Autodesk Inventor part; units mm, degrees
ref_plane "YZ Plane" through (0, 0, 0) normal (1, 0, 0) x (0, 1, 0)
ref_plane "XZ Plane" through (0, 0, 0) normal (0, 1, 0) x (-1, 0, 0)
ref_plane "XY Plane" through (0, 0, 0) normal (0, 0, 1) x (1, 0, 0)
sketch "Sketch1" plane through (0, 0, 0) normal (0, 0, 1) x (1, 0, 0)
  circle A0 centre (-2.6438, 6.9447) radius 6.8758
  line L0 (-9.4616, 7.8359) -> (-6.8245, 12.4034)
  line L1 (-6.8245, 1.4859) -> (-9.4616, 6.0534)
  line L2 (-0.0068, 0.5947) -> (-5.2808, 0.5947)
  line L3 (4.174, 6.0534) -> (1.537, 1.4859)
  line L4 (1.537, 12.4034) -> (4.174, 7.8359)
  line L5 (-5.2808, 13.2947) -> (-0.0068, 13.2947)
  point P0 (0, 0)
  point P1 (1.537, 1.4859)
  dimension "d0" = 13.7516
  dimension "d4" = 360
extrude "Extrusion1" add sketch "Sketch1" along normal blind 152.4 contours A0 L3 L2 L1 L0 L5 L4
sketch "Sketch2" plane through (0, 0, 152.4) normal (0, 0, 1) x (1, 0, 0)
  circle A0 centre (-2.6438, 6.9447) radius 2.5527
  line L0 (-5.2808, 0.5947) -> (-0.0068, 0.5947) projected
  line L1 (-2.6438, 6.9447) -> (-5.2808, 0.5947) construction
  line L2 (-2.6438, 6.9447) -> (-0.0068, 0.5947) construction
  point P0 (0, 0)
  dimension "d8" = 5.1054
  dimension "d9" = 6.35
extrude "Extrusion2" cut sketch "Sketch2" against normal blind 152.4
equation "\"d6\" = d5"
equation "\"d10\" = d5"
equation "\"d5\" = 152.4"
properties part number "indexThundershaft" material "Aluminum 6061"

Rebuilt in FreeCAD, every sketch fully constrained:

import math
import FreeCAD as App
import Part
import Sketcher

V = App.Vector
Q = App.Units.Quantity

doc = App.newDocument("Part")
params = doc.addObject("Spreadsheet::Sheet", "Params")
for row, (alias, value) in enumerate([
    ("pad1_length", "6 in"),
    ("sketch2_diameter", "0.201 in"),
    ("pocket1_length", "6 in"),
], start=1):
    params.set(f"A{row}", alias)
    params.set(f"B{row}", "=" + value)
    params.setAlias(f"B{row}", alias)

body = doc.addObject("PartDesign::Body", "Body")

# Sketch on XY plane
sketch1 = body.newObject("Sketcher::SketchObject", "Sketch")
sketch1.AttachmentSupport = (doc.getObject("XY_Plane"), [""])
sketch1.MapMode = "FlatFace"
sketch1.addGeometry(Part.ArcOfCircle(Part.Circle(V(-2.6, 6.9, 0), V(0, 0, 1), 6.9), math.radians(-7.45), math.radians(7.45)), False)
sketch1.addGeometry(Part.LineSegment(V(4.2, 7.8, 0), V(1.5, 12.4, 0)), False)
sketch1.addGeometry(Part.ArcOfCircle(Part.Circle(V(-2.6, 6.9, 0), V(0, 0, 1), 6.9), math.radians(52.55), math.radians(67.45)), False)
sketch1.addGeometry(Part.LineSegment(V(0, 13.3, 0), V(-5.3, 13.3, 0)), False)
sketch1.addGeometry(Part.ArcOfCircle(Part.Circle(V(-2.6, 6.9, 0), V(0, 0, 1), 6.9), math.radians(112.55), math.radians(127.45)), False)
sketch1.addGeometry(Part.LineSegment(V(-6.8, 12.4, 0), V(-9.5, 7.8, 0)), False)
sketch1.addGeometry(Part.ArcOfCircle(Part.Circle(V(-2.6, 6.9, 0), V(0, 0, 1), 6.9), math.radians(172.55), math.radians(187.45)), False)
sketch1.addGeometry(Part.LineSegment(V(-9.5, 6.1, 0), V(-6.8, 1.5, 0)), False)
sketch1.addGeometry(Part.ArcOfCircle(Part.Circle(V(-2.6, 6.9, 0), V(0, 0, 1), 6.9), math.radians(-127.45), math.radians(-112.55)), False)
sketch1.addGeometry(Part.LineSegment(V(-5.3, 0.6, 0), V(0, 0.6, 0)), False)
sketch1.addGeometry(Part.ArcOfCircle(Part.Circle(V(-2.6, 6.9, 0), V(0, 0, 1), 6.9), math.radians(-67.45), math.radians(-52.55)), False)
sketch1.addGeometry(Part.LineSegment(V(1.5, 1.5, 0), V(4.2, 6.1, 0)), False)
sketch1.addConstraint(Sketcher.Constraint("Coincident", 0, 2, 1, 1))
sketch1.addConstraint(Sketcher.Constraint("Coincident", 1, 2, 2, 1))
sketch1.addConstraint(Sketcher.Constraint("Coincident", 2, 2, 3, 1))
sketch1.addConstraint(Sketcher.Constraint("Coincident", 3, 2, 4, 1))
sketch1.addConstraint(Sketcher.Constraint("Coincident", 4, 2, 5, 1))
sketch1.addConstraint(Sketcher.Constraint("Coincident", 5, 2, 6, 1))
sketch1.addConstraint(Sketcher.Constraint("Coincident", 6, 2, 7, 1))
sketch1.addConstraint(Sketcher.Constraint("Coincident", 7, 2, 8, 1))
sketch1.addConstraint(Sketcher.Constraint("Coincident", 8, 2, 9, 1))
sketch1.addConstraint(Sketcher.Constraint("Coincident", 9, 2, 10, 1))
sketch1.addConstraint(Sketcher.Constraint("Coincident", 10, 2, 11, 1))
sketch1.addConstraint(Sketcher.Constraint("Coincident", 11, 2, 0, 1))
sketch1.addConstraint(Sketcher.Constraint("Horizontal", 3))
sketch1.addConstraint(Sketcher.Constraint("Horizontal", 9))
sketch1.addConstraint(Sketcher.Constraint("Coincident", 2, 3, 0, 3))
sketch1.addConstraint(Sketcher.Constraint("Coincident", 4, 3, 0, 3))
sketch1.addConstraint(Sketcher.Constraint("Coincident", 6, 3, 0, 3))
sketch1.addConstraint(Sketcher.Constraint("Coincident", 8, 3, 0, 3))
sketch1.addConstraint(Sketcher.Constraint("Coincident", 10, 3, 0, 3))
sketch1.addConstraint(Sketcher.Constraint("Equal", 0, 2))
sketch1.addConstraint(Sketcher.Constraint("Equal", 2, 4))
sketch1.addConstraint(Sketcher.Constraint("Equal", 4, 6))
sketch1.addConstraint(Sketcher.Constraint("Equal", 6, 8))
sketch1.addConstraint(Sketcher.Constraint("Equal", 8, 10))
sketch1.addConstraint(Sketcher.Constraint("Parallel", 1, 7))
sketch1.addConstraint(Sketcher.Constraint("Parallel", 5, 11))
sketch1.addConstraint(Sketcher.Constraint("Horizontal", 1, 2, 4, 2))
sketch1.addConstraint(Sketcher.Constraint("Horizontal", 0, 2, 5, 2))
sketch1.addConstraint(Sketcher.Constraint("Horizontal", 7, 2, 10, 2))
sketch1.addConstraint(Sketcher.Constraint("Vertical", 5, 2, 6, 2))
sketch1.addConstraint(Sketcher.Constraint("Vertical", 3, 2, 8, 2))
sketch1.addConstraint(Sketcher.Constraint("Radius", 0, Q("0.2707 in")))
sketch1.addConstraint(Sketcher.Constraint("Angle", 1, Q("119.9996 deg")))
sketch1.addConstraint(Sketcher.Constraint("DistanceY", 0, 3, 2, 2, Q("0.25 in")))
sketch1.addConstraint(Sketcher.Constraint("DistanceY", 10, 2, 0, 2, Q("0.25 in")))
sketch1.addConstraint(Sketcher.Constraint("DistanceY", -1, 1, 0, 2, Q("0.3085 in")))
sketch1.addConstraint(Sketcher.Constraint("DistanceX", -1, 1, 1, 2, Q("0.0605 in")))
pad1 = body.newObject("PartDesign::Pad", "Pad")
pad1.Profile = sketch1
pad1.setExpression("Length", "Params.pad1_length")

# Sketch on XY plane
sketch2 = body.newObject("Sketcher::SketchObject", "Sketch001")
sketch2.AttachmentSupport = (doc.getObject("XY_Plane"), [""])
sketch2.MapMode = "FlatFace"
sketch2.AttachmentOffset = App.Placement(V(0, 0, 6 * 25.4), App.Rotation())
sketch2.addGeometry(Part.Circle(V(-2.6, 6.9, 0), V(0, 0, 1), 2.6), False)
sketch2.addConstraint(Sketcher.Constraint("Diameter", 0, Q("0.201 in")))
sketch2.addConstraint(Sketcher.Constraint("DistanceX", 0, 3, -1, 1, 2.6438))
sketch2.addConstraint(Sketcher.Constraint("DistanceY", -1, 1, 0, 3, 6.9447))
sketch2.setExpression("Constraints[0]", "Params.sketch2_diameter")
pocket1 = body.newObject("PartDesign::Pocket", "Pocket")
pocket1.Profile = sketch2
pocket1.setExpression("Length", "Params.pocket1_length")

doc.recompute()
